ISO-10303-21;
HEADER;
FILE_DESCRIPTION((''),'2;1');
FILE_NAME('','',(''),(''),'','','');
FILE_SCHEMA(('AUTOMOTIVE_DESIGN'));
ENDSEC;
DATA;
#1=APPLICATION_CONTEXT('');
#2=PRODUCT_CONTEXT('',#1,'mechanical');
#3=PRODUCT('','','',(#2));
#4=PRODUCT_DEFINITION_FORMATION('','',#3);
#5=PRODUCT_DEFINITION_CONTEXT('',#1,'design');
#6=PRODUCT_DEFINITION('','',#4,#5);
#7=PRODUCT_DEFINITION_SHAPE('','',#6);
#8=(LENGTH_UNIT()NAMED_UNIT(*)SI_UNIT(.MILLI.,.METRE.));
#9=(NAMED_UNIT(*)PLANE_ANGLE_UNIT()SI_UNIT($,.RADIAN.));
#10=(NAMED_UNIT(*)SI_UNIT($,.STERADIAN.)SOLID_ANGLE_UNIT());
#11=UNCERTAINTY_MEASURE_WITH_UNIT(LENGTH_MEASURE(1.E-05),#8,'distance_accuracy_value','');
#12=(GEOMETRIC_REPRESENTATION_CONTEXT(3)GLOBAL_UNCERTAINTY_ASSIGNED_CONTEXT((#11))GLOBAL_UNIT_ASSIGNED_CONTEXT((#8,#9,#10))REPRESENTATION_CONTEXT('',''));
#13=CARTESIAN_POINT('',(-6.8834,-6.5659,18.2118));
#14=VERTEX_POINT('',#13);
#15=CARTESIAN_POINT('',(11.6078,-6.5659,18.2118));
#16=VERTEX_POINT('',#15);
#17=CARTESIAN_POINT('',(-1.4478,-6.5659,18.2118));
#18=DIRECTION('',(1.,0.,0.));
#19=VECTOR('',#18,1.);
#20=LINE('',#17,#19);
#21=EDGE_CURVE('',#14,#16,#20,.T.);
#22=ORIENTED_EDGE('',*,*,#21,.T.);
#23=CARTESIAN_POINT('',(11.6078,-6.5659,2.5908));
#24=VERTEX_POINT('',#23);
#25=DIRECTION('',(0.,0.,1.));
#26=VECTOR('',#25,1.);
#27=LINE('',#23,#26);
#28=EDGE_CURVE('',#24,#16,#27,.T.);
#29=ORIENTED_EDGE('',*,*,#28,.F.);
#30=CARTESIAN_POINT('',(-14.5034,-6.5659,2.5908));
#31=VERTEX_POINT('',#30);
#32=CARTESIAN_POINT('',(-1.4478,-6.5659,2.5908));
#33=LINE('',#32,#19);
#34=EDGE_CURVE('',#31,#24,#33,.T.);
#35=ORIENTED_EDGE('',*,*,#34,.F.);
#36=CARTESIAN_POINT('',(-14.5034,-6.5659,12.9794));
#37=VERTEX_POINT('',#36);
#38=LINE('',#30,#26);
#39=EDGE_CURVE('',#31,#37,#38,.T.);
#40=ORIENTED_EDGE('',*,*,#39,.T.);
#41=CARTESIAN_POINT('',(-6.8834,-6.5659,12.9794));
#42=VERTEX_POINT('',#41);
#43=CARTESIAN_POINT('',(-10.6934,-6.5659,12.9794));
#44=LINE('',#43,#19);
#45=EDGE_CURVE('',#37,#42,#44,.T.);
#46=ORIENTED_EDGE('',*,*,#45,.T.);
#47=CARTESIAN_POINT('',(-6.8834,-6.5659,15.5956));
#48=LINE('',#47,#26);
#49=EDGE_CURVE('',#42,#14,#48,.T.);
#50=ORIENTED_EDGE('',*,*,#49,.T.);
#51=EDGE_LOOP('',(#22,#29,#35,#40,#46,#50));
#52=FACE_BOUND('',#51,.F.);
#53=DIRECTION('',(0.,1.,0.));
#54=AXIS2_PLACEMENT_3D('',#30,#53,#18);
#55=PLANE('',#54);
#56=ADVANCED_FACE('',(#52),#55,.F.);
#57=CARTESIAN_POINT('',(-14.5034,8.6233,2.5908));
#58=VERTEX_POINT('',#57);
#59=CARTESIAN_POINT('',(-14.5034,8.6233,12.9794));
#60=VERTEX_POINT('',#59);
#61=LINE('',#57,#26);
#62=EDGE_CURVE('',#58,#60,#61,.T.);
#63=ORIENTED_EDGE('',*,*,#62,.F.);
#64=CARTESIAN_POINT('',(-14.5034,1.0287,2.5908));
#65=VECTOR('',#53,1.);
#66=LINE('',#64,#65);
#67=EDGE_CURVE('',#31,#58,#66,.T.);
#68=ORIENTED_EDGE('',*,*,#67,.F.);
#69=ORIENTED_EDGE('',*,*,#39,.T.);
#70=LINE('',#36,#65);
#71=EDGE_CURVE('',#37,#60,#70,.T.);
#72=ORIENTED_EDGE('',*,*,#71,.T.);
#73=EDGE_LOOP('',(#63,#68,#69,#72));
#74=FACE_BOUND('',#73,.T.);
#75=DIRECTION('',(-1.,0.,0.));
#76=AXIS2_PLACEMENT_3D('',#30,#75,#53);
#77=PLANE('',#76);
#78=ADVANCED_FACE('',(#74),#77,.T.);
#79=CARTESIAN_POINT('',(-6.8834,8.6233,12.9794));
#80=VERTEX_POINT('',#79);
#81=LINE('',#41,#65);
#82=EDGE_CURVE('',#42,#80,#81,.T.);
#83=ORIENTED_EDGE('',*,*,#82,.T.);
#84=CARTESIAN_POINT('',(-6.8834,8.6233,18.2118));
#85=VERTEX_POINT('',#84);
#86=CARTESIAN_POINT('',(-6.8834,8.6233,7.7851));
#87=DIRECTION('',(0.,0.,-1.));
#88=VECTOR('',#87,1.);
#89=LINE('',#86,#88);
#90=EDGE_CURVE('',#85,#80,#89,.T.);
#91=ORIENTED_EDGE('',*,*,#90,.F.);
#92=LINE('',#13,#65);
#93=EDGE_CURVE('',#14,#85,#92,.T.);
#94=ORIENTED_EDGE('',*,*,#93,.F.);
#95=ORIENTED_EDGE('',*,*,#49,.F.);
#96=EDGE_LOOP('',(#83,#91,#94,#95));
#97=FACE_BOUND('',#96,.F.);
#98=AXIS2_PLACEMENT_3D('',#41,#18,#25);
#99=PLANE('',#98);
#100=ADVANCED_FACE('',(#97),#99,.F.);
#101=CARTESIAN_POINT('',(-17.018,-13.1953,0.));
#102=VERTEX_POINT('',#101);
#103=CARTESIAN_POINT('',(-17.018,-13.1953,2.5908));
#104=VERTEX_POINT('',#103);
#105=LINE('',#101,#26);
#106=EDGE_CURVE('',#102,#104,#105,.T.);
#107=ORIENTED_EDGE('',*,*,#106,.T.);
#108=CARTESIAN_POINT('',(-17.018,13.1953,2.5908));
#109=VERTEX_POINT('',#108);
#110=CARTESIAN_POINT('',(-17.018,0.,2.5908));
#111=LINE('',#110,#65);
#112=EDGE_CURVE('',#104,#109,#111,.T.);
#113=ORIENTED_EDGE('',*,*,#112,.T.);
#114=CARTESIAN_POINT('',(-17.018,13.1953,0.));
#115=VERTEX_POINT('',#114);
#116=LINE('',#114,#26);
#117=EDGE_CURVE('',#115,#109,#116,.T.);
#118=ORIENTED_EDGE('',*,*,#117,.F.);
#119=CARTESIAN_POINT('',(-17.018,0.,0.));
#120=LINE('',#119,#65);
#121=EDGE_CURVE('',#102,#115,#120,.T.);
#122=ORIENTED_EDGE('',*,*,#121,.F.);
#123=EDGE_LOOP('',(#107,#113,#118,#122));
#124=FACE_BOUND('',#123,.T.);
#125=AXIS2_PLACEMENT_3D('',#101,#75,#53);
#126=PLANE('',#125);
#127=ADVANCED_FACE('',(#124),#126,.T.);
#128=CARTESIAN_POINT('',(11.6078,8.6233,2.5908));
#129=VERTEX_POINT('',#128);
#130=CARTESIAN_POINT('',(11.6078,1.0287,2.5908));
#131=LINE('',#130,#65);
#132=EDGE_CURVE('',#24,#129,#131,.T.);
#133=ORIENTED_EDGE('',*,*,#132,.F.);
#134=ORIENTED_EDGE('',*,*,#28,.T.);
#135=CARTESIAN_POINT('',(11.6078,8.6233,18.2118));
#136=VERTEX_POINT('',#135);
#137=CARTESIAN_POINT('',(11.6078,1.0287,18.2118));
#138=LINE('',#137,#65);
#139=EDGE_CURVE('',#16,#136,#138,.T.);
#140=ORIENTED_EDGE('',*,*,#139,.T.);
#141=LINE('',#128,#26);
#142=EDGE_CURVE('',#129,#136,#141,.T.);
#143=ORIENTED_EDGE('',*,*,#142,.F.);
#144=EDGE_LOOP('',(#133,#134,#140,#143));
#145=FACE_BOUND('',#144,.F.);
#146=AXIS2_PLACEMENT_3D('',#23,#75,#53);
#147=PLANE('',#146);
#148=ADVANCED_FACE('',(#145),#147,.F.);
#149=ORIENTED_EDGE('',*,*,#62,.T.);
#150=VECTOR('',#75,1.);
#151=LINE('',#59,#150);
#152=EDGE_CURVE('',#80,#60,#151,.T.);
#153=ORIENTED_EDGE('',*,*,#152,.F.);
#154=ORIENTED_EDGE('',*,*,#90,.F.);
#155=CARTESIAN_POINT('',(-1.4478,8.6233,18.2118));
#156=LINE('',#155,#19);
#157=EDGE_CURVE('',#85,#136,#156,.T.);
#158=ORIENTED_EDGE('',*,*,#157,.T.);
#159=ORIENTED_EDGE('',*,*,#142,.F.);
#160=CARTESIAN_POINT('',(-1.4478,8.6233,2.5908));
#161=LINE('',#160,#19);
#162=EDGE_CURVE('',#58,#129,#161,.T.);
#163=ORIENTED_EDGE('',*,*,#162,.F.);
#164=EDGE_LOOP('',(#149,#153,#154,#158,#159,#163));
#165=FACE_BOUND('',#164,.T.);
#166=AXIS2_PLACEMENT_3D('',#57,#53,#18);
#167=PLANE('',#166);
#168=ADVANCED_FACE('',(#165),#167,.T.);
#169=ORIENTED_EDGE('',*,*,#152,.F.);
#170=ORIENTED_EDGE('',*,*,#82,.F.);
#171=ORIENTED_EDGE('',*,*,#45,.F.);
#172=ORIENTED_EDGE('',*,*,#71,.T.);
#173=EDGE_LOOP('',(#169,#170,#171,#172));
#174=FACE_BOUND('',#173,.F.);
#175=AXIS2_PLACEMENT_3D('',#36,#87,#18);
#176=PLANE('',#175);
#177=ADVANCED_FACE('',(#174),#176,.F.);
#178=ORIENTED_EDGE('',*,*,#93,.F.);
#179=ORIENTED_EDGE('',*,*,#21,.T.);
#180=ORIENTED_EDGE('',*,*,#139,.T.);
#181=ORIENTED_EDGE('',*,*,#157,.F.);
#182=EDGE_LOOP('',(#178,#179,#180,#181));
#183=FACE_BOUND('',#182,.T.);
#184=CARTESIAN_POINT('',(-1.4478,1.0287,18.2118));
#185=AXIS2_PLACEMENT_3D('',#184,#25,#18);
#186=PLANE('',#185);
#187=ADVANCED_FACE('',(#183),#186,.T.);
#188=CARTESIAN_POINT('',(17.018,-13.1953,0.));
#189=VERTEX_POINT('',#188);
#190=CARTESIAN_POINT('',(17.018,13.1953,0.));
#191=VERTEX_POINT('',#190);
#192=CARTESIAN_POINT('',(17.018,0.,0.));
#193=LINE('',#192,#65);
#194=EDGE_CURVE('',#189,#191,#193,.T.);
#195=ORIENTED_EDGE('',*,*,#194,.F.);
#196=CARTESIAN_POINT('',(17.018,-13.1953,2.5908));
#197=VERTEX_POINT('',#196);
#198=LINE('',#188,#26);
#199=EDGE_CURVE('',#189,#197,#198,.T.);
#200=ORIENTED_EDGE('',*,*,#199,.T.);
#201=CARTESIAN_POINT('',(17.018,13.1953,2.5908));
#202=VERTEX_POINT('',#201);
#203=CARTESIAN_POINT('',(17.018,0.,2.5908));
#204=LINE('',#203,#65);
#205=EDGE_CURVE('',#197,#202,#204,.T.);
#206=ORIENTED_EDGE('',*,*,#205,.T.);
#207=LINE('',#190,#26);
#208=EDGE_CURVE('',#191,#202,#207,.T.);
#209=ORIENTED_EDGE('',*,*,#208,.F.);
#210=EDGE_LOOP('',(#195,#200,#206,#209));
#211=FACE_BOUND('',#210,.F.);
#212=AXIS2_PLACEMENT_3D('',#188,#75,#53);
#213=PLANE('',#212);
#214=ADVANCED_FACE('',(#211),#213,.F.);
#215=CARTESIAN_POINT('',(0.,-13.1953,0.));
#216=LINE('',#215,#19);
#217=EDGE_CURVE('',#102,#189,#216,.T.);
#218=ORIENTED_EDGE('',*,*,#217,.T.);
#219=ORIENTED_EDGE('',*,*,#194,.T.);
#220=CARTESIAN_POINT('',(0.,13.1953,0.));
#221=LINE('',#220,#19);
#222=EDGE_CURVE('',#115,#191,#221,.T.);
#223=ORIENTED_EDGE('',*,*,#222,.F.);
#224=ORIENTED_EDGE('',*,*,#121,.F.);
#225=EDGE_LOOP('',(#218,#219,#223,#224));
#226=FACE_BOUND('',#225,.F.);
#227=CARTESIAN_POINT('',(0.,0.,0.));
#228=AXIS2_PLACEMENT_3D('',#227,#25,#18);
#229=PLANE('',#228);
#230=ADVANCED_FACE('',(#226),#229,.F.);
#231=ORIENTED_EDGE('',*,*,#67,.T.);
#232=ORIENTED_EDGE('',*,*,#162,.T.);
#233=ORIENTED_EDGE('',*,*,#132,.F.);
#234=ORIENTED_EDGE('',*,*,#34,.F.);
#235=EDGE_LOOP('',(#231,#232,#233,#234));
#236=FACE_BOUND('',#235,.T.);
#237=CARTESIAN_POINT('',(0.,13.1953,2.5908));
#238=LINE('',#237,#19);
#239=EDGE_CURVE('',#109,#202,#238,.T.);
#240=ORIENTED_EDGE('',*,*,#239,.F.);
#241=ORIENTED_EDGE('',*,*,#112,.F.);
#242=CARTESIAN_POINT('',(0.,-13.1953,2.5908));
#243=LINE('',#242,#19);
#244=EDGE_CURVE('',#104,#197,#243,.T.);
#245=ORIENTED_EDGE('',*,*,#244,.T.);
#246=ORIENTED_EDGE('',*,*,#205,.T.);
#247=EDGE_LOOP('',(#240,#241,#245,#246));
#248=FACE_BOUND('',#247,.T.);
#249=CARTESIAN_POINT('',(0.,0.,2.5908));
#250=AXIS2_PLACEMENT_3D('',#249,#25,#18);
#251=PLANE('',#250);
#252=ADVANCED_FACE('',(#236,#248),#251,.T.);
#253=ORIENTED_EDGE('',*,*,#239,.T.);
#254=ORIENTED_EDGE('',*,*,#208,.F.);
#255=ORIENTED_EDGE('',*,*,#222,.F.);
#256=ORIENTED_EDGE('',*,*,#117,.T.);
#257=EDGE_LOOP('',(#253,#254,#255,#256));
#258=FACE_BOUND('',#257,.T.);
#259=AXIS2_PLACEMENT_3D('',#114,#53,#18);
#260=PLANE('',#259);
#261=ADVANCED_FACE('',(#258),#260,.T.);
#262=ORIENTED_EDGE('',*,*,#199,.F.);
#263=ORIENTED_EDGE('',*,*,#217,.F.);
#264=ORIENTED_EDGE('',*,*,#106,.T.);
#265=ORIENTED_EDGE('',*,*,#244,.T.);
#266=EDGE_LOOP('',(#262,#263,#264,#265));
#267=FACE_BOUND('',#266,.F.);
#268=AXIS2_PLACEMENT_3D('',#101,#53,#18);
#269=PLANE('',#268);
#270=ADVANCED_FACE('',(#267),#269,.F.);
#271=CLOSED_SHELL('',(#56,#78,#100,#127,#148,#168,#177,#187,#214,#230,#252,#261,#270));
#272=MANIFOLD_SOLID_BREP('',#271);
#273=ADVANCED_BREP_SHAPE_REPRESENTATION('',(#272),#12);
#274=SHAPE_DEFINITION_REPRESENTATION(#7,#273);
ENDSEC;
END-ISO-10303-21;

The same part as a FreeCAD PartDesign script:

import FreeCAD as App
import Part
import Sketcher
Q = App.Units.Quantity


def add_polygon(sketch, points):
    """Adds a closed chain of lines whose ends are joined by coincident constraints."""
    first, n = sketch.GeometryCount, len(points)
    for a, b in zip(points, points[1:] + points[:1]):
        sketch.addGeometry(Part.LineSegment(App.Vector(*a, 0), App.Vector(*b, 0)), False)
    for i in range(n):
        sketch.addConstraint(Sketcher.Constraint("Coincident", first + i, 2, first + (i + 1) % n, 1))

doc = App.newDocument("Part")
body = doc.addObject("PartDesign::Body", "Body")

sketch1 = body.newObject("Sketcher::SketchObject", "Sketch")
sketch1.AttachmentSupport = (doc.getObject("XY_Plane"), [""])
sketch1.MapMode = "FlatFace"
add_polygon(sketch1, [(-17, 13), (-17, -13), (17, -13), (17, 13)])
sketch1.addConstraint([
    Sketcher.Constraint("Vertical", 0),
    Sketcher.Constraint("Horizontal", 1),
    Sketcher.Constraint("Vertical", 2),
    Sketcher.Constraint("Horizontal", 3),
    Sketcher.Constraint("Symmetric", 0, 2, 2, 2, -1, 1),
    Sketcher.Constraint("DistanceX", 1, 1, 1, 2, Q("1.34 in")),
    Sketcher.Constraint("DistanceY", 0, 2, 0, 1, Q("1.039 in")),
])
pad1 = body.newObject("PartDesign::Pad", "Pad")
pad1.Profile = sketch1
pad1.Length = Q("0.102 in")

sketch2 = body.newObject("Sketcher::SketchObject", "Sketch001")
sketch2.AttachmentSupport = (doc.getObject("XY_Plane"), [""])
sketch2.MapMode = "FlatFace"
sketch2.AttachmentOffset = App.Placement(App.Vector(0, 0, 0.102 * 25.4), App.Rotation())
add_polygon(sketch2, [(-15, 9), (-15, -7), (12, -7), (12, 9)])
sketch2.addConstraint([
    Sketcher.Constraint("Vertical", 0),
    Sketcher.Constraint("Horizontal", 1),
    Sketcher.Constraint("Vertical", 2),
    Sketcher.Constraint("Horizontal", 3),
    Sketcher.Constraint("DistanceX", 1, 1, 1, 2, Q("1.028 in")),
    Sketcher.Constraint("DistanceY", 0, 2, 0, 1, Q("0.598 in")),
    Sketcher.Constraint("DistanceX", 0, 2, -1, 1, Q("0.571 in")),
    Sketcher.Constraint("DistanceY", 0, 2, -1, 1, Q("0.2585 in")),
])
pad2 = body.newObject("PartDesign::Pad", "Pad001")
pad2.Profile = sketch2
pad2.Length = Q("0.615 in")

sketch3 = body.newObject("Sketcher::SketchObject", "Sketch002")
sketch3.AttachmentSupport = (doc.getObject("XZ_Plane"), [""])
sketch3.MapMode = "FlatFace"
sketch3.AttachmentOffset = App.Placement(App.Vector(0, 0, 0.2585 * 25.4), App.Rotation())
add_polygon(sketch3, [(-15, 18), (-15, 13), (-7, 13), (-7, 18)])
sketch3.addConstraint([
    Sketcher.Constraint("Vertical", 0),
    Sketcher.Constraint("Horizontal", 1),
    Sketcher.Constraint("Vertical", 2),
    Sketcher.Constraint("Horizontal", 3),
    Sketcher.Constraint("DistanceX", 1, 1, 1, 2, Q("0.3 in")),
    Sketcher.Constraint("DistanceY", 0, 2, 0, 1, Q("0.206 in")),
    Sketcher.Constraint("DistanceX", 0, 2, -1, 1, Q("0.571 in")),
    Sketcher.Constraint("DistanceY", -1, 1, 0, 2, Q("0.511 in")),
])
pocket1 = body.newObject("PartDesign::Pocket", "Pocket")
pocket1.Profile = sketch3
pocket1.Type = "ThroughAll"

doc.recompute()
